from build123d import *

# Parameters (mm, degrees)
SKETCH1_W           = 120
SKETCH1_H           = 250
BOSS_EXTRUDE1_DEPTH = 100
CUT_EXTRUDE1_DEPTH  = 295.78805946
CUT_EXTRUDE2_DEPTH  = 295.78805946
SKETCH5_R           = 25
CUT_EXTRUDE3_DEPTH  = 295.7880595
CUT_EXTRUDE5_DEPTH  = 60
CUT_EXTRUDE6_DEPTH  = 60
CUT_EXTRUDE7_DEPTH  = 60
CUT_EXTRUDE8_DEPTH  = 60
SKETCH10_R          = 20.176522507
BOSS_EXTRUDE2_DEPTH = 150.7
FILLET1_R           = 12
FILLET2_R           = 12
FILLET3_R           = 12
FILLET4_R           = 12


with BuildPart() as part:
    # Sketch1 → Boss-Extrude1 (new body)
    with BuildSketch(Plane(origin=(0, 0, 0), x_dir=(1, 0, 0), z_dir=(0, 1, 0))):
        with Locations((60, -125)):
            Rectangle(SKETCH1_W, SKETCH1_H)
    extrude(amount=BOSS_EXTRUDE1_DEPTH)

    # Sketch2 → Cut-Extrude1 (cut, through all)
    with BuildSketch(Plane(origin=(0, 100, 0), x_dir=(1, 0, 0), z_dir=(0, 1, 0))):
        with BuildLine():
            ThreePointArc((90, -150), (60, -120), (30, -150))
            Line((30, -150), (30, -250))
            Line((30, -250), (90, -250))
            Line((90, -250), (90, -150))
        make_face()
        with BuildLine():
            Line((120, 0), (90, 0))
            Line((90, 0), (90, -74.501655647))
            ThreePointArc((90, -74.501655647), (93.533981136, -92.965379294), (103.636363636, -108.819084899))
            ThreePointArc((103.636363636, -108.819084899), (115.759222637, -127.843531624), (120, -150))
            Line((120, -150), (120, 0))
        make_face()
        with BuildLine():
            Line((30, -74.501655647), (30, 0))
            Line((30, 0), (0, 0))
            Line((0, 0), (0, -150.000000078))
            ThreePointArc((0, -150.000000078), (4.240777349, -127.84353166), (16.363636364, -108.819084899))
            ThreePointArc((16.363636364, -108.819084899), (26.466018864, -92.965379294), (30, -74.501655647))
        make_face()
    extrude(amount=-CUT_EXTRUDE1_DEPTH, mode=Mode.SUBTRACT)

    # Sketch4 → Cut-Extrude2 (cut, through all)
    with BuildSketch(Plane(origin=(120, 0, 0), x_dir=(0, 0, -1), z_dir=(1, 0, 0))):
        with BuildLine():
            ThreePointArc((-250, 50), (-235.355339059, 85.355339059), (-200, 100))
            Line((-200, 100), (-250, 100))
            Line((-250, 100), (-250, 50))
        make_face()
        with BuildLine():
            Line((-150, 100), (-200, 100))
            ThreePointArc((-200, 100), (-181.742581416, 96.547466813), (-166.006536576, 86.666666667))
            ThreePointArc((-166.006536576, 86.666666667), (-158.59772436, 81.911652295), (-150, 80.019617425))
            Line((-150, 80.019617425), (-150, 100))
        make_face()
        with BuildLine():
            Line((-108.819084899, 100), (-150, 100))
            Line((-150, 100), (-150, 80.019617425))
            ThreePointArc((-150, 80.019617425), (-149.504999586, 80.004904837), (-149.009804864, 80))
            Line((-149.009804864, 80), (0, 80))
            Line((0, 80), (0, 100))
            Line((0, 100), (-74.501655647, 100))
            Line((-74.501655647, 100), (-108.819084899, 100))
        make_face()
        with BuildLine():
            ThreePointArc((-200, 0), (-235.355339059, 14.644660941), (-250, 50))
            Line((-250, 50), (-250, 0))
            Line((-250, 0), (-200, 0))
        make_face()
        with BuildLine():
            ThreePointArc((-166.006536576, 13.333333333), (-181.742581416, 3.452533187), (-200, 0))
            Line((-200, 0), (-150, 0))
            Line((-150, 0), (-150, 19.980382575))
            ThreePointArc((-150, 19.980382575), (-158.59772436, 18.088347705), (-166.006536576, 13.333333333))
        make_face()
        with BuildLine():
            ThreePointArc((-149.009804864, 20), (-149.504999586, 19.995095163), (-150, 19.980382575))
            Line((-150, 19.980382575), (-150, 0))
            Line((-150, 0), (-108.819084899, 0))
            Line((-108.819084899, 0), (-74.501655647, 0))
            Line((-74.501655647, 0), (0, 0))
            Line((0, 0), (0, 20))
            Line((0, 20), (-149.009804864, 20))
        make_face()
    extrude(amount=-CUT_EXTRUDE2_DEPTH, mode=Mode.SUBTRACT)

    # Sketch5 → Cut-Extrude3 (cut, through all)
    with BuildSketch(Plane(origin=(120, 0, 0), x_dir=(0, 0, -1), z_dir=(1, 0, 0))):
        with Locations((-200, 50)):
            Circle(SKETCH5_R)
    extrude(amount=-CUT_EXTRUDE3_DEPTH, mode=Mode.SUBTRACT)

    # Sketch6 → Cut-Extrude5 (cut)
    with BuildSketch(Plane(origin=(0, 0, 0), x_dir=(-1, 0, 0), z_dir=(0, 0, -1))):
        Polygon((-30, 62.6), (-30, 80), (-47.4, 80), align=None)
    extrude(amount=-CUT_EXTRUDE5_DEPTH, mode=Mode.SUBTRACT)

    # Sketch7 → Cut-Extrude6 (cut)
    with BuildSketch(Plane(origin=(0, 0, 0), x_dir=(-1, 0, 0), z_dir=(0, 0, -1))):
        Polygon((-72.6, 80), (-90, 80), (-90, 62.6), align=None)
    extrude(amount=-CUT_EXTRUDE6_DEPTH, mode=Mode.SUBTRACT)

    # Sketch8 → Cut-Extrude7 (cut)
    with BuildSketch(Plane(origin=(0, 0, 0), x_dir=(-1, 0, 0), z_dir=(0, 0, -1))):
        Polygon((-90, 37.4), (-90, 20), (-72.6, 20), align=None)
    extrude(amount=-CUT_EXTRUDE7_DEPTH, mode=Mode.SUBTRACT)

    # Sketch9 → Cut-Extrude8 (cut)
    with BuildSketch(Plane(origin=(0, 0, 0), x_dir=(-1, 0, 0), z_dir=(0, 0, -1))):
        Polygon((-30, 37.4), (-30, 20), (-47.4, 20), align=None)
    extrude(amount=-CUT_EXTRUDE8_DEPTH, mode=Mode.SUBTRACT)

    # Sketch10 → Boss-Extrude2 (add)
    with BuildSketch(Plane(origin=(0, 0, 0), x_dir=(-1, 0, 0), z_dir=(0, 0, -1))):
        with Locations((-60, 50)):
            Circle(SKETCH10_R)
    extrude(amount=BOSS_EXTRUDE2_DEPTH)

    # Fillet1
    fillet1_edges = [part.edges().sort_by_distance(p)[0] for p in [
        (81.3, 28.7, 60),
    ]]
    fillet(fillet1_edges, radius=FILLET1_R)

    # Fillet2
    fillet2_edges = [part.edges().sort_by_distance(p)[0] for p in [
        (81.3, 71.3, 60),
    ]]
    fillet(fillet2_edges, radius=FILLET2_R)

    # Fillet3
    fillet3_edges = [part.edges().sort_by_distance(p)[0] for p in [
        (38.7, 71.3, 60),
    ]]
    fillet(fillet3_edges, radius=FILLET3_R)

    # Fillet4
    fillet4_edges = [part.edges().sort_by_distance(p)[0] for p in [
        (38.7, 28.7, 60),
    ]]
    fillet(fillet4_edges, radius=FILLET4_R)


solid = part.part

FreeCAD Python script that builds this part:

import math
import FreeCAD as App
import Part
import Sketcher


def edges_at(feature, points):
    """Names of the edges that pass closest to the given points."""
    edges = feature.Shape.Edges
    near = lambda p: min(range(len(edges)), key=lambda i: edges[i].distToShape(Part.Vertex(*p))[0])
    return sorted({f"Edge{near(p) + 1}" for p in points})

doc = App.newDocument("Part")
params = doc.addObject("Spreadsheet::Sheet", "Params")
for row, (alias, value) in enumerate([
    ("sketch1_width", "120 mm"),
    ("sketch1_height", "250 mm"),
    ("pad1_length", "100 mm"),
    ("sketch2_radius", "30 mm"),
    ("sketch2_radius2", "50 mm"),
    ("sketch2_radius3", "60 mm"),
    ("sketch2_height", "100 mm"),
    ("sketch2_height2", "150 mm"),
    ("sketch3_radius", "50 mm"),
    ("sketch3_radius2", "25 mm"),
    ("sketch3_width", "20 mm"),
    ("sketch3_height", "200 mm"),
    ("sketch4_diameter", "50 mm"),
    ("sketch5_width", "17.4 mm"),
    ("pocket4_length", "60 mm"),
    ("sketch6_width", "17.4 mm"),
    ("pocket5_length", "60 mm"),
    ("sketch7_width", "17.4 mm"),
    ("pocket6_length", "60 mm"),
    ("sketch8_width", "17.4 mm"),
    ("pocket7_length", "60 mm"),
    ("pad2_length", "150.7 mm"),
    ("fillet_radius", "12 mm"),
    ("fillet2_radius", "12 mm"),
    ("fillet3_radius", "12 mm"),
    ("fillet4_radius", "12 mm"),
], start=1):
    params.set(f"A{row}", alias)
    params.set(f"B{row}", "=" + value)
    params.setAlias(f"B{row}", alias)

body = doc.addObject("PartDesign::Body", "Body")

# Sketch on XZ plane
sketch1 = body.newObject("Sketcher::SketchObject", "Sketch")
sketch1.AttachmentSupport = (doc.getObject("XZ_Plane"), [""])
sketch1.MapMode = "FlatFace"
sketch1.addGeometry([
    Part.LineSegment(App.Vector(0, 0, 0), App.Vector(0, 250, 0)),
    Part.LineSegment(App.Vector(0, 250, 0), App.Vector(120, 250, 0)),
    Part.LineSegment(App.Vector(120, 250, 0), App.Vector(120, 0, 0)),
    Part.LineSegment(App.Vector(120, 0, 0), App.Vector(0, 0, 0)),
], False)
sketch1.addConstraint([
    Sketcher.Constraint("Coincident", 0, 2, 1, 1),
    Sketcher.Constraint("Coincident", 1, 2, 2, 1),
    Sketcher.Constraint("Coincident", 2, 2, 3, 1),
    Sketcher.Constraint("Coincident", 3, 2, 0, 1),
    Sketcher.Constraint("Vertical", 0),
    Sketcher.Constraint("Horizontal", 1),
    Sketcher.Constraint("Vertical", 2),
    Sketcher.Constraint("Horizontal", 3),
    Sketcher.Constraint("Coincident", 3, 2, -1, 1),
    Sketcher.Constraint("DistanceX", 1, 1, 1, 2, 120.0),
    Sketcher.Constraint("DistanceY", 0, 1, 0, 2, 250.0),
])
sketch1.setExpression("Constraints[9]", "Params.sketch1_width")
sketch1.setExpression("Constraints[10]", "Params.sketch1_height")
pad1 = body.newObject("PartDesign::Pad", "Pad")
pad1.Profile = sketch1
pad1.setExpression("Length", "Params.pad1_length")
pad1.Reversed = True

# Sketch on XZ plane
sketch2 = body.newObject("Sketcher::SketchObject", "Sketch001")
sketch2.AttachmentSupport = (doc.getObject("XZ_Plane"), [""])
sketch2.MapMode = "FlatFace"
sketch2.AttachmentOffset = App.Placement(App.Vector(0, 0, -100), App.Rotation())
sketch2.addGeometry([
    Part.ArcOfCircle(Part.Circle(App.Vector(60, 150, 0), App.Vector(0, 0, 1), 30), math.radians(180), math.radians(360)),  # 0
    Part.LineSegment(App.Vector(30, 150, 0), App.Vector(30, 250, 0)),  # 1
    Part.LineSegment(App.Vector(30, 250, 0), App.Vector(90, 250, 0)),  # 2
    Part.LineSegment(App.Vector(90, 250, 0), App.Vector(90, 150, 0)),  # 3
    Part.LineSegment(App.Vector(120, 0, 0), App.Vector(90, 0, 0)),  # 4
    Part.LineSegment(App.Vector(90, 0, 0), App.Vector(90, 75, 0)),  # 5
    Part.ArcOfCircle(Part.Circle(App.Vector(140, 75, 0), App.Vector(0, 0, 1), 50), math.radians(137), math.radians(180)),  # 6
    Part.ArcOfCircle(Part.Circle(App.Vector(60, 150, 0), App.Vector(0, 0, 1), 60), math.radians(-43), math.radians(0)),  # 7
    Part.LineSegment(App.Vector(120, 150, 0), App.Vector(120, 0, 0)),  # 8
    Part.LineSegment(App.Vector(30, 75, 0), App.Vector(30, 0, 0)),  # 9
    Part.LineSegment(App.Vector(30, 0, 0), App.Vector(0, 0, 0)),  # 10
    Part.LineSegment(App.Vector(0, 0, 0), App.Vector(0, 150, 0)),  # 11
    Part.ArcOfCircle(Part.Circle(App.Vector(60, 150, 0), App.Vector(0, 0, 1), 60), math.radians(180), math.radians(223)),  # 12
    Part.ArcOfCircle(Part.Circle(App.Vector(-20, 75, 0), App.Vector(0, 0, 1), 50), math.radians(0), math.radians(43)),  # 13
], False)
sketch2.addConstraint([
    Sketcher.Constraint("Tangent", 0, 1, 1, 1),
    Sketcher.Constraint("Coincident", 1, 2, 2, 1),
    Sketcher.Constraint("Coincident", 2, 2, 3, 1),
    Sketcher.Constraint("Tangent", 3, 2, 0, 2),
    Sketcher.Constraint("Coincident", 4, 2, 5, 1),
    Sketcher.Constraint("Tangent", 5, 2, 6, 2),
    Sketcher.Constraint("Tangent", 6, 1, 7, 1),
    Sketcher.Constraint("Tangent", 7, 2, 8, 1),
    Sketcher.Constraint("Coincident", 8, 2, 4, 1),
    Sketcher.Constraint("Coincident", 9, 2, 10, 1),
    Sketcher.Constraint("Coincident", 10, 2, 11, 1),
    Sketcher.Constraint("Tangent", 11, 2, 12, 1),
    Sketcher.Constraint("Tangent", 12, 2, 13, 2),
    Sketcher.Constraint("Tangent", 13, 1, 9, 1),
    Sketcher.Constraint("Vertical", 1),
    Sketcher.Constraint("Horizontal", 2),
    Sketcher.Constraint("Vertical", 3),
    Sketcher.Constraint("Horizontal", 4),
    Sketcher.Constraint("Vertical", 5),
    Sketcher.Constraint("Vertical", 8),
    Sketcher.Constraint("Vertical", 9),
    Sketcher.Constraint("Horizontal", 10),
    Sketcher.Constraint("Vertical", 11),
    Sketcher.Constraint("Coincident", 10, 2, -1, 1),
    Sketcher.Constraint("Coincident", 7, 3, 0, 3),
    Sketcher.Constraint("Coincident", 12, 3, 0, 3),
    Sketcher.Constraint("Equal", 7, 12),
    Sketcher.Constraint("Equal", 6, 13),
    Sketcher.Constraint("PointOnObject", 4, 2, -1),
    Sketcher.Constraint("Horizontal", 6, 3, 13, 3),
    Sketcher.Constraint("Vertical", 3, 2, 4, 2),
    Sketcher.Constraint("Radius", 0, 30.0),
    Sketcher.Constraint("Radius", 6, 50.0),
    Sketcher.Constraint("Radius", 7, 60.0),
    Sketcher.Constraint("DistanceY", 1, 1, 1, 2, 100.0),
    Sketcher.Constraint("DistanceY", 8, 2, 8, 1, 150.0),
])
sketch2.setExpression("Constraints[31]", "Params.sketch2_radius")
sketch2.setExpression("Constraints[32]", "Params.sketch2_radius2")
sketch2.setExpression("Constraints[33]", "Params.sketch2_radius3")
sketch2.setExpression("Constraints[34]", "Params.sketch2_height")
sketch2.setExpression("Constraints[35]", "Params.sketch2_height2")
pocket1 = body.newObject("PartDesign::Pocket", "Pocket")
pocket1.Profile = sketch2
pocket1.Type = "ThroughAll"
pocket1.Reversed = True

# Sketch on YZ plane
sketch3 = body.newObject("Sketcher::SketchObject", "Sketch002")
sketch3.AttachmentSupport = (doc.getObject("YZ_Plane"), [""])
sketch3.MapMode = "FlatFace"
sketch3.AttachmentOffset = App.Placement(App.Vector(0, 0, 120), App.Rotation())
sketch3.addGeometry([
    Part.ArcOfCircle(Part.Circle(App.Vector(50, 200, 0), App.Vector(0, 0, 1), 50), math.radians(0), math.radians(90)),  # 0
    Part.LineSegment(App.Vector(100, 200, 0), App.Vector(100, 250, 0)),  # 1
    Part.LineSegment(App.Vector(100, 250, 0), App.Vector(50, 250, 0)),  # 2
    Part.ArcOfCircle(Part.Circle(App.Vector(50, 200, 0), App.Vector(0, 0, 1), 50), math.radians(-43), math.radians(0)),  # 3
    Part.ArcOfCircle(Part.Circle(App.Vector(105, 149, 0), App.Vector(0, 0, 1), 25), math.radians(137), math.radians(178)),  # 4
    Part.ArcOfCircle(Part.Circle(App.Vector(105, 149, 0), App.Vector(0, 0, 1), 25), math.radians(177.73), math.radians(180)),  # 5
    Part.LineSegment(App.Vector(80, 149, 0), App.Vector(80, 0, 0)),  # 6
    Part.LineSegment(App.Vector(80, 0, 0), App.Vector(100, 0, 0)),  # 7
    Part.LineSegment(App.Vector(100, 0, 0), App.Vector(100, 200, 0)),  # 8
    Part.ArcOfCircle(Part.Circle(App.Vector(50, 200, 0), App.Vector(0, 0, 1), 50), math.radians(90), math.radians(180)),  # 9
    Part.LineSegment(App.Vector(50, 250, 0), App.Vector(0, 250, 0)),  # 10
    Part.LineSegment(App.Vector(0, 250, 0), App.Vector(0, 200, 0)),  # 11
    Part.ArcOfCircle(Part.Circle(App.Vector(50, 200, 0), App.Vector(0, 0, 1), 50), math.radians(180), math.radians(223)),  # 12
    Part.LineSegment(App.Vector(0, 200, 0), App.Vector(0, 0, 0)),  # 13
    Part.LineSegment(App.Vector(0, 0, 0), App.Vector(20, 0, 0)),  # 14
    Part.LineSegment(App.Vector(20, 0, 0), App.Vector(20, 149, 0)),  # 15
    Part.ArcOfCircle(Part.Circle(App.Vector(-5, 149, 0), App.Vector(0, 0, 1), 25), math.radians(0), math.radians(2.27)),  # 16
    Part.ArcOfCircle(Part.Circle(App.Vector(-5, 149, 0), App.Vector(0, 0, 1), 25), math.radians(2), math.radians(43)),  # 17
], False)
sketch3.addConstraint([
    Sketcher.Constraint("Tangent", 0, 1, 1, 1),
    Sketcher.Constraint("Coincident", 1, 2, 2, 1),
    Sketcher.Constraint("Tangent", 2, 2, 0, 2),
    Sketcher.Constraint("Tangent", 3, 1, 4, 1),
    Sketcher.Constraint("Tangent", 4, 2, 5, 1),
    Sketcher.Constraint("Tangent", 5, 2, 6, 1),
    Sketcher.Constraint("Coincident", 6, 2, 7, 1),
    Sketcher.Constraint("Coincident", 7, 2, 8, 1),
    Sketcher.Constraint("Tangent", 8, 2, 3, 2),
    Sketcher.Constraint("Tangent", 9, 1, 10, 1),
    Sketcher.Constraint("Coincident", 10, 2, 11, 1),
    Sketcher.Constraint("Tangent", 11, 2, 9, 2),
    Sketcher.Constraint("Tangent", 12, 1, 13, 1),
    Sketcher.Constraint("Coincident", 13, 2, 14, 1),
    Sketcher.Constraint("Coincident", 14, 2, 15, 1),
    Sketcher.Constraint("Tangent", 15, 2, 16, 1),
    Sketcher.Constraint("Tangent", 16, 2, 17, 1),
    Sketcher.Constraint("Tangent", 17, 2, 12, 2),
    Sketcher.Constraint("Vertical", 1),
    Sketcher.Constraint("Horizontal", 2),
    Sketcher.Constraint("Vertical", 6),
    Sketcher.Constraint("Horizontal", 7),
    Sketcher.Constraint("Vertical", 8),
    Sketcher.Constraint("Horizontal", 10),
    Sketcher.Constraint("Vertical", 11),
    Sketcher.Constraint("Vertical", 13),
    Sketcher.Constraint("Horizontal", 14),
    Sketcher.Constraint("Vertical", 15),
    Sketcher.Constraint("Coincident", 13, 2, -1, 1),
    Sketcher.Constraint("Coincident", 3, 3, 0, 3),
    Sketcher.Constraint("Coincident", 9, 3, 0, 3),
    Sketcher.Constraint("Coincident", 12, 3, 0, 3),
    Sketcher.Constraint("Equal", 0, 3),
    Sketcher.Constraint("Equal", 3, 9),
    Sketcher.Constraint("Equal", 9, 12),
    Sketcher.Constraint("Equal", 5, 16),
    Sketcher.Constraint("Equal", 4, 17),
    Sketcher.Constraint("PointOnObject", 6, 2, -1),
    Sketcher.Constraint("Horizontal", 5, 3, 16, 3),
    Sketcher.Constraint("Horizontal", 5, 3, 17, 3),
    Sketcher.Constraint("Horizontal", 4, 2, 16, 2),
    Sketcher.Constraint("Radius", 0, 50.0),
    Sketcher.Constraint("Radius", 4, 25.0),
    Sketcher.Constraint("DistanceX", 7, 1, 7, 2, 20.0),
    Sketcher.Constraint("DistanceY", 8, 1, 8, 2, 200.0),
    Sketcher.Constraint("DistanceY", -1, 1, 4, 2, 150.0),
])
sketch3.setExpression("Constraints[41]", "Params.sketch3_radius")
sketch3.setExpression("Constraints[42]", "Params.sketch3_radius2")
sketch3.setExpression("Constraints[43]", "Params.sketch3_width")
sketch3.setExpression("Constraints[44]", "Params.sketch3_height")
pocket2 = body.newObject("PartDesign::Pocket", "Pocket001")
pocket2.Profile = sketch3
pocket2.Type = "ThroughAll"

# Sketch on YZ plane
sketch4 = body.newObject("Sketcher::SketchObject", "Sketch003")
sketch4.AttachmentSupport = (doc.getObject("YZ_Plane"), [""])
sketch4.MapMode = "FlatFace"
sketch4.AttachmentOffset = App.Placement(App.Vector(0, 0, 120), App.Rotation())
sketch4.addGeometry(Part.Circle(App.Vector(50, 200, 0), App.Vector(0, 0, 1), 25), False)
sketch4.addConstraint([
    Sketcher.Constraint("Diameter", 0, 50.0),
    Sketcher.Constraint("DistanceX", -1, 1, 0, 3, 50.0),
    Sketcher.Constraint("DistanceY", -1, 1, 0, 3, 200.0),
])
sketch4.setExpression("Constraints[0]", "Params.sketch4_diameter")
pocket3 = body.newObject("PartDesign::Pocket", "Pocket002")
pocket3.Profile = sketch4
pocket3.Type = "ThroughAll"

# Sketch on XY plane
sketch5 = body.newObject("Sketcher::SketchObject", "Sketch004")
sketch5.AttachmentSupport = (doc.getObject("XY_Plane"), [""])
sketch5.MapMode = "FlatFace"
sketch5.addGeometry([
    Part.LineSegment(App.Vector(30, 63, 0), App.Vector(30, 80, 0)),
    Part.LineSegment(App.Vector(30, 80, 0), App.Vector(47, 80, 0)),
    Part.LineSegment(App.Vector(47, 80, 0), App.Vector(30, 63, 0)),
], False)
sketch5.addConstraint([
    Sketcher.Constraint("Coincident", 0, 2, 1, 1),
    Sketcher.Constraint("Coincident", 1, 2, 2, 1),
    Sketcher.Constraint("Coincident", 2, 2, 0, 1),
    Sketcher.Constraint("Vertical", 0),
    Sketcher.Constraint("Horizontal", 1),
    Sketcher.Constraint("Equal", 1, 0),
    Sketcher.Constraint("DistanceX", 1, 1, 1, 2, 17.4),
    Sketcher.Constraint("DistanceX", -1, 1, 0, 2, 30.0),
    Sketcher.Constraint("DistanceY", -1, 1, 0, 2, 80.0),
])
sketch5.setExpression("Constraints[6]", "Params.sketch5_width")
pocket4 = body.newObject("PartDesign::Pocket", "Pocket003")
pocket4.Profile = sketch5
pocket4.setExpression("Length", "Params.pocket4_length")
pocket4.Reversed = True

# Sketch on XY plane
sketch6 = body.newObject("Sketcher::SketchObject", "Sketch005")
sketch6.AttachmentSupport = (doc.getObject("XY_Plane"), [""])
sketch6.MapMode = "FlatFace"
sketch6.addGeometry([
    Part.LineSegment(App.Vector(73, 80, 0), App.Vector(90, 80, 0)),
    Part.LineSegment(App.Vector(90, 80, 0), App.Vector(90, 63, 0)),
    Part.LineSegment(App.Vector(90, 63, 0), App.Vector(73, 80, 0)),
], False)
sketch6.addConstraint([
    Sketcher.Constraint("Coincident", 0, 2, 1, 1),
    Sketcher.Constraint("Coincident", 1, 2, 2, 1),
    Sketcher.Constraint("Coincident", 2, 2, 0, 1),
    Sketcher.Constraint("Horizontal", 0),
    Sketcher.Constraint("Vertical", 1),
    Sketcher.Constraint("Equal", 0, 1),
    Sketcher.Constraint("DistanceX", 0, 1, 0, 2, 17.4),
    Sketcher.Constraint("DistanceX", -1, 1, 0, 2, 90.0),
    Sketcher.Constraint("DistanceY", -1, 1, 0, 2, 80.0),
])
sketch6.setExpression("Constraints[6]", "Params.sketch6_width")
pocket5 = body.newObject("PartDesign::Pocket", "Pocket004")
pocket5.Profile = sketch6
pocket5.setExpression("Length", "Params.pocket5_length")
pocket5.Reversed = True

# Sketch on XY plane
sketch7 = body.newObject("Sketcher::SketchObject", "Sketch006")
sketch7.AttachmentSupport = (doc.getObject("XY_Plane"), [""])
sketch7.MapMode = "FlatFace"
sketch7.addGeometry([
    Part.LineSegment(App.Vector(90, 37, 0), App.Vector(90, 20, 0)),
    Part.LineSegment(App.Vector(90, 20, 0), App.Vector(73, 20, 0)),
    Part.LineSegment(App.Vector(73, 20, 0), App.Vector(90, 37, 0)),
], False)
sketch7.addConstraint([
    Sketcher.Constraint("Coincident", 0, 2, 1, 1),
    Sketcher.Constraint("Coincident", 1, 2, 2, 1),
    Sketcher.Constraint("Coincident", 2, 2, 0, 1),
    Sketcher.Constraint("Vertical", 0),
    Sketcher.Constraint("Horizontal", 1),
    Sketcher.Constraint("Equal", 1, 0),
    Sketcher.Constraint("DistanceX", 1, 2, 1, 1, 17.4),
    Sketcher.Constraint("DistanceX", -1, 1, 0, 2, 90.0),
    Sketcher.Constraint("DistanceY", -1, 1, 0, 2, 20.0),
])
sketch7.setExpression("Constraints[6]", "Params.sketch7_width")
pocket6 = body.newObject("PartDesign::Pocket", "Pocket005")
pocket6.Profile = sketch7
pocket6.setExpression("Length", "Params.pocket6_length")
pocket6.Reversed = True

# Sketch on XY plane
sketch8 = body.newObject("Sketcher::SketchObject", "Sketch007")
sketch8.AttachmentSupport = (doc.getObject("XY_Plane"), [""])
sketch8.MapMode = "FlatFace"
sketch8.addGeometry([
    Part.LineSegment(App.Vector(30, 20, 0), App.Vector(30, 37, 0)),
    Part.LineSegment(App.Vector(30, 37, 0), App.Vector(47, 20, 0)),
    Part.LineSegment(App.Vector(47, 20, 0), App.Vector(30, 20, 0)),
], False)
sketch8.addConstraint([
    Sketcher.Constraint("Coincident", 0, 2, 1, 1),
    Sketcher.Constraint("Coincident", 1, 2, 2, 1),
    Sketcher.Constraint("Coincident", 2, 2, 0, 1),
    Sketcher.Constraint("Vertical", 0),
    Sketcher.Constraint("Horizontal", 2),
    Sketcher.Constraint("Equal", 2, 0),
    Sketcher.Constraint("DistanceX", 2, 2, 2, 1, 17.4),
    Sketcher.Constraint("DistanceX", -1, 1, 0, 2, 30.0),
    Sketcher.Constraint("DistanceY", -1, 1, 1, 2, 20.0),
])
sketch8.setExpression("Constraints[6]", "Params.sketch8_width")
pocket7 = body.newObject("PartDesign::Pocket", "Pocket006")
pocket7.Profile = sketch8
pocket7.setExpression("Length", "Params.pocket7_length")
pocket7.Reversed = True

# Sketch on XY plane
sketch9 = body.newObject("Sketcher::SketchObject", "Sketch008")
sketch9.AttachmentSupport = (doc.getObject("XY_Plane"), [""])
sketch9.MapMode = "FlatFace"
sketch9.addGeometry(Part.Circle(App.Vector(60, 50, 0), App.Vector(0, 0, 1), 20), False)
sketch9.addConstraint([
    Sketcher.Constraint("DistanceX", -1, 1, 0, 3, 60.0),
    Sketcher.Constraint("DistanceY", -1, 1, 0, 3, 50.0),
    Sketcher.Constraint("Diameter", 0, 40.353045),
])
pad2 = body.newObject("PartDesign::Pad", "Pad001")
pad2.Profile = sketch9
pad2.setExpression("Length", "Params.pad2_length")
pad2.Reversed = True
doc.recompute()

fillet = body.newObject("PartDesign::Fillet", "Fillet")
fillet.Base = (pad2, edges_at(pad2, [(81.3, 28.7, 60)]))
fillet.setExpression("Radius", "Params.fillet_radius")
doc.recompute()

fillet2 = body.newObject("PartDesign::Fillet", "Fillet001")
fillet2.Base = (fillet, edges_at(fillet, [(81.3, 71.3, 60)]))
fillet2.setExpression("Radius", "Params.fillet2_radius")
doc.recompute()

fillet3 = body.newObject("PartDesign::Fillet", "Fillet002")
fillet3.Base = (fillet2, edges_at(fillet2, [(38.7, 71.3, 60)]))
fillet3.setExpression("Radius", "Params.fillet3_radius")
doc.recompute()

fillet4 = body.newObject("PartDesign::Fillet", "Fillet003")
fillet4.Base = (fillet3, edges_at(fillet3, [(38.7, 28.7, 60)]))
fillet4.setExpression("Radius", "Params.fillet4_radius")

doc.recompute()
